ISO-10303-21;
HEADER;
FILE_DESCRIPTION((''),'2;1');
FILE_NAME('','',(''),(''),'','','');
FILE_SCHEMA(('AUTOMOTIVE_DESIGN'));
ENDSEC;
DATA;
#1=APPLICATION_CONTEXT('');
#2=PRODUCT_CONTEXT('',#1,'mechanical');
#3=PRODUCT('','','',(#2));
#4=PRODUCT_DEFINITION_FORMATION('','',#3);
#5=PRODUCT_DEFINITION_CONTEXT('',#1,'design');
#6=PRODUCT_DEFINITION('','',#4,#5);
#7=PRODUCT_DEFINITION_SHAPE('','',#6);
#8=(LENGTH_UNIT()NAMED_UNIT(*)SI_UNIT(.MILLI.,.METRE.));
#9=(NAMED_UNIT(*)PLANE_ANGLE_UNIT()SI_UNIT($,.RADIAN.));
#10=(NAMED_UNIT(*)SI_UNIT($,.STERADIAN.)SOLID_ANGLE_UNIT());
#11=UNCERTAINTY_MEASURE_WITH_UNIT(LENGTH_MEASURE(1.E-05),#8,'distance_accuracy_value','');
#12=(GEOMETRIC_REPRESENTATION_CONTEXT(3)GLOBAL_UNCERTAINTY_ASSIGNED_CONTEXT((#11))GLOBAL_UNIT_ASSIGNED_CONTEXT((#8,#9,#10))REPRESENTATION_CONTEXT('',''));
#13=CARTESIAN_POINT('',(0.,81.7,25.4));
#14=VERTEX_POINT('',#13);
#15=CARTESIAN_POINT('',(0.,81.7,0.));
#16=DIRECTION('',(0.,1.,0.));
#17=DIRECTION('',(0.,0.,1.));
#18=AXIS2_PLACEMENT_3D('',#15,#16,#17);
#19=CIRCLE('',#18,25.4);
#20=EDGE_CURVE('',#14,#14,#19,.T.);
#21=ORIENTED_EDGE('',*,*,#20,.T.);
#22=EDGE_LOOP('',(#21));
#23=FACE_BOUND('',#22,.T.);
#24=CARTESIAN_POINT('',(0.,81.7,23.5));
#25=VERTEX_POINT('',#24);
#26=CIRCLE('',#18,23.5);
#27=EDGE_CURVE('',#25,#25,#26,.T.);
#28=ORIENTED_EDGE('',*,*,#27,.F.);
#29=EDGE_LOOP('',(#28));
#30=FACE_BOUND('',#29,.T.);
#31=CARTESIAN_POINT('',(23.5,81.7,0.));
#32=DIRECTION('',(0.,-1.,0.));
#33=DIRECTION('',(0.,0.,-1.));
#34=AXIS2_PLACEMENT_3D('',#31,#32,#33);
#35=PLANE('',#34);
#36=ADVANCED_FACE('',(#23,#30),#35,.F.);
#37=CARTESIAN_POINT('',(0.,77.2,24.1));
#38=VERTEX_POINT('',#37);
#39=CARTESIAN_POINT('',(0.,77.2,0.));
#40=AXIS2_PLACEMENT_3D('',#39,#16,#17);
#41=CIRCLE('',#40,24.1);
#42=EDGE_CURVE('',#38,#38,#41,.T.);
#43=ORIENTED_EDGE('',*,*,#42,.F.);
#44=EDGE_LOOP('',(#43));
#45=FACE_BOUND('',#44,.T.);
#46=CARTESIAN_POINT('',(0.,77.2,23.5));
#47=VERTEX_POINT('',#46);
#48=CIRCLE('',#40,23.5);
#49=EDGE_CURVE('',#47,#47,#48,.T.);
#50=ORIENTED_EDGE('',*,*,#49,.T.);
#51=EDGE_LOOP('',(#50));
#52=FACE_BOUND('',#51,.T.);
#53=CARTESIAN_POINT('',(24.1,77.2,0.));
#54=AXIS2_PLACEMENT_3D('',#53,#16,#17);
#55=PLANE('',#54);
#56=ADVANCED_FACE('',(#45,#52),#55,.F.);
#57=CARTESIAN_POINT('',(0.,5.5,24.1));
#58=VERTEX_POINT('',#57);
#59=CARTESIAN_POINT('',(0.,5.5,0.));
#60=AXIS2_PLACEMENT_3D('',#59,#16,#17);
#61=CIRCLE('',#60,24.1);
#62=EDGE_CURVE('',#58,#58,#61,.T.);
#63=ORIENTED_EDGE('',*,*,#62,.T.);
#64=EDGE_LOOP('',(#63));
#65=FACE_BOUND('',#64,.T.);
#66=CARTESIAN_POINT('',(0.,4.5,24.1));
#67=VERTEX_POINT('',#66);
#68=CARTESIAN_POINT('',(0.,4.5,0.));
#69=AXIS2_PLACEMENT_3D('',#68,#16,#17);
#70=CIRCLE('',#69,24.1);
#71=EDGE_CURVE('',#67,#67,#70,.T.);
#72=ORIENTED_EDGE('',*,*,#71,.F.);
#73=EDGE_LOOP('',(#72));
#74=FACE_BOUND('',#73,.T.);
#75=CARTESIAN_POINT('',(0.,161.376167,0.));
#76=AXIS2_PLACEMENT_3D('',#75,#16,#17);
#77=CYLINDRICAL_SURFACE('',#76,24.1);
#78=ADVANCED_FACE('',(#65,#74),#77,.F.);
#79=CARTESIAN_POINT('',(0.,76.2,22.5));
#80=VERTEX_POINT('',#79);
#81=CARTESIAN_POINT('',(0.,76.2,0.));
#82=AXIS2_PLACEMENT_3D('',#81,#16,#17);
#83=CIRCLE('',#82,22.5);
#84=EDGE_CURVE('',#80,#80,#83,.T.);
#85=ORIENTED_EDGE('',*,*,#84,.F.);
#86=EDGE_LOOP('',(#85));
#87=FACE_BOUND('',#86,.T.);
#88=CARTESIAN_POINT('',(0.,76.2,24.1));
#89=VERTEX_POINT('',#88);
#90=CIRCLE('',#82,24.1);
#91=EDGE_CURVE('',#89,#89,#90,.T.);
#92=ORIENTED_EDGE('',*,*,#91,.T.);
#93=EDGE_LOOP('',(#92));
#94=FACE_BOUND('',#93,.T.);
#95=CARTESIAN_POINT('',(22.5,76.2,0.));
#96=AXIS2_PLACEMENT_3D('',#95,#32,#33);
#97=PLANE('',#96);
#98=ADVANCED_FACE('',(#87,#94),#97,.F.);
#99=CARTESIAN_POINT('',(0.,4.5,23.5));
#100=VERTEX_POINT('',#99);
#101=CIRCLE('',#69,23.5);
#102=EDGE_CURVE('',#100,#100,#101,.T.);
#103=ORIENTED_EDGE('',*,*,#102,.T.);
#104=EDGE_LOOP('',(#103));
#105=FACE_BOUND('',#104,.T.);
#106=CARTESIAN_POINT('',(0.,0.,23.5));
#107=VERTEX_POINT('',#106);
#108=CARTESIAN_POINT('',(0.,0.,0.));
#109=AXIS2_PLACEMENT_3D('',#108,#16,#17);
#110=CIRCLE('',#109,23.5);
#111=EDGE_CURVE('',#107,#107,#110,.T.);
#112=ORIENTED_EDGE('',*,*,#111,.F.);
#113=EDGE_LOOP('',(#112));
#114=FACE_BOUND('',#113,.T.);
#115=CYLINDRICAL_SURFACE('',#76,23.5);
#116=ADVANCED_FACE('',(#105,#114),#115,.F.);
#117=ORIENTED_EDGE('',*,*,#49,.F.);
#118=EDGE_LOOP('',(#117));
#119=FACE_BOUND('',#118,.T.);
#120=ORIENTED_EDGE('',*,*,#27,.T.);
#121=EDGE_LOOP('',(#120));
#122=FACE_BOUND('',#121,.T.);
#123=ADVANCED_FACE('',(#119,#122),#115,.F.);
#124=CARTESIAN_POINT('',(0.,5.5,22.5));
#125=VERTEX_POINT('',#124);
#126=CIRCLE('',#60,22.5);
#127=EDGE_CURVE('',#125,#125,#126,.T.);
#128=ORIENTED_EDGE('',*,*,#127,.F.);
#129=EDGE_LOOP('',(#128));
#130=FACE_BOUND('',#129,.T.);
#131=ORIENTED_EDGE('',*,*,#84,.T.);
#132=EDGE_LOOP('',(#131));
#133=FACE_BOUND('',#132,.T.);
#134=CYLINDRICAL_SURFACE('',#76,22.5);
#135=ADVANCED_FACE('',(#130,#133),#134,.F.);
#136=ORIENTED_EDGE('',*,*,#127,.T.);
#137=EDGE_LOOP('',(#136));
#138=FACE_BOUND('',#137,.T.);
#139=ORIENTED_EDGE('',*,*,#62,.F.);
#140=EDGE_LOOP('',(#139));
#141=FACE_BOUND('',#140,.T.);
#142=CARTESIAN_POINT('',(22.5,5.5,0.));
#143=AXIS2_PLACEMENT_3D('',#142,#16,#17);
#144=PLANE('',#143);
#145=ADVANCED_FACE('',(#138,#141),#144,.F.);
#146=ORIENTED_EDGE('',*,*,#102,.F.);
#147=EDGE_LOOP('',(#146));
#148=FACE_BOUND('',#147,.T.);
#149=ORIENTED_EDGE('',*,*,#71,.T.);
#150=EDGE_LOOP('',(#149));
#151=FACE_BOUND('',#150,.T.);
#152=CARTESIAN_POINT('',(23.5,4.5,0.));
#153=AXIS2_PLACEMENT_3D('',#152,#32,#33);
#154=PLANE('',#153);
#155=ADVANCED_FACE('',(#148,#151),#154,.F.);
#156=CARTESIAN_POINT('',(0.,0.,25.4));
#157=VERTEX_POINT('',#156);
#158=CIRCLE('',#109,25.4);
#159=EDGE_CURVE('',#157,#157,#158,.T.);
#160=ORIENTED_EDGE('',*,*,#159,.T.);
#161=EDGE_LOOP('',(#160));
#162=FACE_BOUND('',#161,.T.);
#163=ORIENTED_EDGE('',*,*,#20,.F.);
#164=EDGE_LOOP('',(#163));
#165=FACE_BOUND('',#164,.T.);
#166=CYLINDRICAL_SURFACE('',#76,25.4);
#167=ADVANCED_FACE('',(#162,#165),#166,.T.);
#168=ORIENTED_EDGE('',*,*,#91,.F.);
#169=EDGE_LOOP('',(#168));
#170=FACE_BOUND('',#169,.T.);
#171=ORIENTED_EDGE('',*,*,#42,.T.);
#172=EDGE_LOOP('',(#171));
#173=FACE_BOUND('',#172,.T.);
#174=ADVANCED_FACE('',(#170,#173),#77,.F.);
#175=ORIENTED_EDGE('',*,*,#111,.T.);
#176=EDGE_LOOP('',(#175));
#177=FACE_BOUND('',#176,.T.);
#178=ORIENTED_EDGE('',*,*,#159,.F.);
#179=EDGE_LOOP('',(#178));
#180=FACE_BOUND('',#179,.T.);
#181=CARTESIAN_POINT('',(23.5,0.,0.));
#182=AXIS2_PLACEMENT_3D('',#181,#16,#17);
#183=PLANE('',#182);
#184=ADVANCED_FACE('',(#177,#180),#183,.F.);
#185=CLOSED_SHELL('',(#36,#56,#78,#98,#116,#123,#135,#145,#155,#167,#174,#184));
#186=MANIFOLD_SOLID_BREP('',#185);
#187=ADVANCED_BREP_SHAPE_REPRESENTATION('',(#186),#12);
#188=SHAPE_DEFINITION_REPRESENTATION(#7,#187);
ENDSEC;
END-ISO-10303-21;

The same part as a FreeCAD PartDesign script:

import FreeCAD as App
import Part
import Sketcher
from FreeCAD import Vector


def add_polygon(sketch, points):
    """Adds a closed chain of lines whose ends are joined by coincident constraints."""
    first, n = sketch.GeometryCount, len(points)
    for a, b in zip(points, points[1:] + points[:1]):
        sketch.addGeometry(Part.LineSegment(App.Vector(*a, 0), App.Vector(*b, 0)), False)
    for i in range(n):
        sketch.addConstraint(Sketcher.Constraint("Coincident", first + i, 2, first + (i + 1) % n, 1))

doc = App.newDocument("Part")
params = doc.addObject("Spreadsheet::Sheet", "Params")
for row, (alias, value) in enumerate([
    ("sketch1_height", "1 mm"),
    ("sketch1_width", "1.9 mm"),
    ("sketch1_width2", "0.6 mm"),
    ("sketch1_width3", "1.6 mm"),
    ("sketch1_height2", "81.7 mm"),
    ("revolution_angle", "360 deg"),
], start=1):
    params.set(f"A{row}", alias)
    params.set(f"B{row}", "=" + value)
    params.setAlias(f"B{row}", alias)

body = doc.addObject("PartDesign::Body", "Body")

# Sketch on XY plane
sketch1 = body.newObject("Sketcher::SketchObject", "Sketch")
sketch1.AttachmentSupport = (doc.getObject("XY_Plane"), [""])
sketch1.MapMode = "FlatFace"
add_polygon(sketch1, [(25.4, 0), (25.4, 81.7), (23.5, 81.7), (23.5, 77.2), (24.1, 77.2), (24.1, 76.2), (22.5, 76.2), (22.5, 5.5), (24.1, 5.5), (24.1, 4.5), (23.5, 4.5), (23.5, 0)])  # lines 0-11
sketch1.addConstraint([
    Sketcher.Constraint("Vertical", 0),
    Sketcher.Constraint("Horizontal", 1),
    Sketcher.Constraint("Vertical", 2),
    Sketcher.Constraint("Horizontal", 3),
    Sketcher.Constraint("Vertical", 4),
    Sketcher.Constraint("Horizontal", 5),
    Sketcher.Constraint("Vertical", 6),
    Sketcher.Constraint("Horizontal", 7),
    Sketcher.Constraint("Vertical", 8),
    Sketcher.Constraint("Horizontal", 9),
    Sketcher.Constraint("Vertical", 10),
    Sketcher.Constraint("Horizontal", 11),
    Sketcher.Constraint("PointOnObject", 10, 2, -1),
    Sketcher.Constraint("Vertical", 4, 2, 7, 2),
    Sketcher.Constraint("Vertical", 2, 2, 9, 2),
    Sketcher.Constraint("Equal", 4, 8),
    Sketcher.Constraint("Equal", 2, 10),
    Sketcher.Constraint("DistanceY", 4, 2, 4, 1, 1.0),
    Sketcher.Constraint("DistanceX", 1, 2, 1, 1, 1.9),
    Sketcher.Constraint("DistanceX", 3, 1, 3, 2, 0.6),
    Sketcher.Constraint("DistanceX", 5, 2, 5, 1, 1.6),
    Sketcher.Constraint("DistanceY", 0, 1, 0, 2, 81.7),
    Sketcher.Constraint("DistanceY", 2, 2, 2, 1, 4.5),
    Sketcher.Constraint("DistanceX", -1, 1, 0, 2, 25.4),
])
sketch1.setExpression("Constraints[29]", "Params.sketch1_height")
sketch1.setExpression("Constraints[30]", "Params.sketch1_width")
sketch1.setExpression("Constraints[31]", "Params.sketch1_width2")
sketch1.setExpression("Constraints[32]", "Params.sketch1_width3")
sketch1.setExpression("Constraints[33]", "Params.sketch1_height2")
revolution = body.newObject("PartDesign::Revolution", "Revolution")
revolution.Profile = sketch1
revolution.ReferenceAxis = (sketch1, ["V_Axis"])
revolution.setExpression("Angle", "Params.revolution_angle")

doc.recompute()
